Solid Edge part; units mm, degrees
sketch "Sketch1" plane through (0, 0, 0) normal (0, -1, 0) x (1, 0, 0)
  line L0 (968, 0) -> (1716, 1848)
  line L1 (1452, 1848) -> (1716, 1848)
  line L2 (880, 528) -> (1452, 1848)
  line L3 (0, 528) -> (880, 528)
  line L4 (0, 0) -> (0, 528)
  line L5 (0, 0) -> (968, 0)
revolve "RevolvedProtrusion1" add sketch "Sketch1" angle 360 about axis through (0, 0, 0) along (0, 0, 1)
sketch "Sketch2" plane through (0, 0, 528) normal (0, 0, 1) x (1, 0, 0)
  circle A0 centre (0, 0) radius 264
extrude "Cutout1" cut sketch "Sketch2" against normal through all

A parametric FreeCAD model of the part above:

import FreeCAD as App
import Part
import Sketcher
from FreeCAD import Vector
Q = App.Units.Quantity

doc = App.newDocument("Part")
body = doc.addObject("PartDesign::Body", "Body")

sketch1 = doc.addObject("Sketcher::SketchObject", "Sketch")
body.addObject(sketch1)
sketch1.AttachmentSupport = (doc.XZ_Plane, [""])
sketch1.MapMode = "FlatFace"
sketch1.addGeometry([
    Part.LineSegment(Vector(0, 0, 0), Vector(968, 0, 0)),
    Part.LineSegment(Vector(968, 0, 0), Vector(1716, 1848, 0)),
    Part.LineSegment(Vector(1716, 1848, 0), Vector(1452, 1848, 0)),
    Part.LineSegment(Vector(1452, 1848, 0), Vector(880, 528, 0)),
    Part.LineSegment(Vector(880, 528, 0), Vector(0, 528, 0)),
    Part.LineSegment(Vector(0, 528, 0), Vector(0, 0, 0)),
], False)
sketch1.addConstraint([
    Sketcher.Constraint("Coincident", 0, 2, 1, 1),
    Sketcher.Constraint("Coincident", 1, 2, 2, 1),
    Sketcher.Constraint("Coincident", 2, 2, 3, 1),
    Sketcher.Constraint("Coincident", 3, 2, 4, 1),
    Sketcher.Constraint("Coincident", 4, 2, 5, 1),
    Sketcher.Constraint("Coincident", 5, 2, 0, 1),
    Sketcher.Constraint("Horizontal", 0),
    Sketcher.Constraint("Horizontal", 2),
    Sketcher.Constraint("Horizontal", 4),
    Sketcher.Constraint("Vertical", 5),
    Sketcher.Constraint("Coincident", 5, 2, -1, 1),
    Sketcher.Constraint("DistanceX", 0, 1, 0, 2, Q("968 mm")),
    Sketcher.Constraint("DistanceX", 2, 2, 2, 1, Q("264 mm")),
    Sketcher.Constraint("DistanceX", 4, 2, 4, 1, Q("880 mm")),
    Sketcher.Constraint("DistanceY", 5, 2, 5, 1, Q("528 mm")),
    Sketcher.Constraint("DistanceX", -1, 1, 1, 2, Q("1716 mm")),
    Sketcher.Constraint("DistanceY", -1, 1, 1, 2, Q("1848 mm")),
])
revolution = doc.addObject("PartDesign::Revolution", "Revolution")
body.addObject(revolution)
revolution.Profile = sketch1
revolution.ReferenceAxis = (sketch1, ["V_Axis"])
revolution.Angle = 360

sketch2 = doc.addObject("Sketcher::SketchObject", "Sketch001")
body.addObject(sketch2)
sketch2.AttachmentSupport = (doc.XY_Plane, [""])
sketch2.MapMode = "FlatFace"
sketch2.AttachmentOffset = App.Placement(Vector(0, 0, 528), App.Rotation())
sketch2.addGeometry(Part.Circle(Vector(0, 0, 0), Vector(0, 0, 1), 264), False)
sketch2.addConstraint([
    Sketcher.Constraint("Coincident", 0, 3, -1, 1),
    Sketcher.Constraint("Diameter", 0, Q("528 mm")),
])
pocket1 = doc.addObject("PartDesign::Pocket", "Pocket")
body.addObject(pocket1)
pocket1.Profile = sketch2
pocket1.Type = "ThroughAll"

doc.recompute()
